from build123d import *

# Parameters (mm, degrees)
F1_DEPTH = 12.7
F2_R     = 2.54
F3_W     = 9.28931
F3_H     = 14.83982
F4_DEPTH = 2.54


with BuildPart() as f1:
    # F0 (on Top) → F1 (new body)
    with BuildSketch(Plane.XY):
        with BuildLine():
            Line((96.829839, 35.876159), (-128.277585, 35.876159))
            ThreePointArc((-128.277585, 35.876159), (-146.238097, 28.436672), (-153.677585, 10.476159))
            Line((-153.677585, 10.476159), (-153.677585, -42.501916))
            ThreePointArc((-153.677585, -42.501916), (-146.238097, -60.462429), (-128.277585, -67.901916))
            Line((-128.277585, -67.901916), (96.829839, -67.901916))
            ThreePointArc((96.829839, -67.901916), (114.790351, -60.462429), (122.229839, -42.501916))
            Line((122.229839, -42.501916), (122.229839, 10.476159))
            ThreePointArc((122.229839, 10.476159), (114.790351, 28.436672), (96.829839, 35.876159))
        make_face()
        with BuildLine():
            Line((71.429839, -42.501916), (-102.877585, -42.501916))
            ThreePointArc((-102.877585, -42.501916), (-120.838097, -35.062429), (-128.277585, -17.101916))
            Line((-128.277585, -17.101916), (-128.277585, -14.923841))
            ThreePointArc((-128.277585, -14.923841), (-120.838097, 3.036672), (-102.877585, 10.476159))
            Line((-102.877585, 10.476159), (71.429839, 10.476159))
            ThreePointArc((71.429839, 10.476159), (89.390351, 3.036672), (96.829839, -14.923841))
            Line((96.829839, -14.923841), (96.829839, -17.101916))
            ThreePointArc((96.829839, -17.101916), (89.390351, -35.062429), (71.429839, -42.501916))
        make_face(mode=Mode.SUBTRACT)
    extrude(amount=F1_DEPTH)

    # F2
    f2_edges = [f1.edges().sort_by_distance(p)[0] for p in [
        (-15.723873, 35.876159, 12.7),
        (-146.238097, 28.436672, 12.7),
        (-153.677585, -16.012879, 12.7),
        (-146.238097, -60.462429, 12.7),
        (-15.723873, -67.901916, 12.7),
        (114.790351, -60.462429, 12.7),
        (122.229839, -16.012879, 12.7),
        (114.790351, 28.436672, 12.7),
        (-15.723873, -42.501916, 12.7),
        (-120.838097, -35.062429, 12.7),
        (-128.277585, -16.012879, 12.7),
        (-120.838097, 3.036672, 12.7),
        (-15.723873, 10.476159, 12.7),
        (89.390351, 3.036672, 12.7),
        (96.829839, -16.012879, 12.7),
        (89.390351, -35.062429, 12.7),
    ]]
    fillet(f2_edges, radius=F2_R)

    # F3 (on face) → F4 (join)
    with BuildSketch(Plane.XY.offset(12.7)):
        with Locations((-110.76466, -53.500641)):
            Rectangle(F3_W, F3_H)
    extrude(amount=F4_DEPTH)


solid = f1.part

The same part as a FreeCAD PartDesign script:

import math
import FreeCAD as App
import Part
import Sketcher

V = App.Vector
Q = App.Units.Quantity


def edges_at(feature, points):
    """Names of the edges that pass closest to the given points."""
    edges = feature.Shape.Edges
    near = lambda p: min(range(len(edges)), key=lambda i: edges[i].distToShape(Part.Vertex(*p))[0])
    return sorted({f"Edge{near(p) + 1}" for p in points})


def add_polygon(sketch, points):
    """Adds a closed chain of lines whose ends are joined by coincident constraints."""
    first, n = sketch.GeometryCount, len(points)
    for a, b in zip(points, points[1:] + points[:1]):
        sketch.addGeometry(Part.LineSegment(App.Vector(*a, 0), App.Vector(*b, 0)), False)
    for i in range(n):
        sketch.addConstraint(Sketcher.Constraint("Coincident", first + i, 2, first + (i + 1) % n, 1))

doc = App.newDocument("Part")
body = doc.addObject("PartDesign::Body", "Body")

sketch1 = body.newObject("Sketcher::SketchObject", "Sketch")
sketch1.AttachmentSupport = (doc.getObject("XY_Plane"), [""])
sketch1.MapMode = "FlatFace"
sketch1.addGeometry(Part.LineSegment(V(96.8, 35.9, 0), V(-128.3, 35.9, 0)), False)
sketch1.addGeometry(Part.ArcOfCircle(Part.Circle(V(-128.3, 10.5, 0), V(0, 0, 1), 25.4), math.radians(90), math.radians(180)), False)
sketch1.addGeometry(Part.LineSegment(V(-153.7, 10.5, 0), V(-153.7, -42.5, 0)), False)
sketch1.addGeometry(Part.ArcOfCircle(Part.Circle(V(-128.3, -42.5, 0), V(0, 0, 1), 25.4), math.radians(180), math.radians(270)), False)
sketch1.addGeometry(Part.LineSegment(V(-128.3, -67.9, 0), V(96.8, -67.9, 0)), False)
sketch1.addGeometry(Part.ArcOfCircle(Part.Circle(V(96.8, -42.5, 0), V(0, 0, 1), 25.4), math.radians(-90), math.radians(0)), False)
sketch1.addGeometry(Part.LineSegment(V(122.2, -42.5, 0), V(122.2, 10.5, 0)), False)
sketch1.addGeometry(Part.ArcOfCircle(Part.Circle(V(96.8, 10.5, 0), V(0, 0, 1), 25.4), math.radians(0), math.radians(90)), False)
sketch1.addGeometry(Part.ArcOfCircle(Part.Circle(V(71.4, -17.1, 0), V(0, 0, 1), 25.4), math.radians(-90), math.radians(0)), False)
sketch1.addGeometry(Part.LineSegment(V(71.4, -42.5, 0), V(-102.9, -42.5, 0)), False)
sketch1.addGeometry(Part.ArcOfCircle(Part.Circle(V(-102.9, -17.1, 0), V(0, 0, 1), 25.4), math.radians(180), math.radians(270)), False)
sketch1.addGeometry(Part.LineSegment(V(-128.3, -17.1, 0), V(-128.3, -14.9, 0)), False)
sketch1.addGeometry(Part.ArcOfCircle(Part.Circle(V(-102.9, -14.9, 0), V(0, 0, 1), 25.4), math.radians(90), math.radians(180)), False)
sketch1.addGeometry(Part.LineSegment(V(-102.9, 10.5, 0), V(71.4, 10.5, 0)), False)
sketch1.addGeometry(Part.ArcOfCircle(Part.Circle(V(71.4, -14.9, 0), V(0, 0, 1), 25.4), math.radians(0), math.radians(90)), False)
sketch1.addGeometry(Part.LineSegment(V(96.8, -14.9, 0), V(96.8, -17.1, 0)), False)
sketch1.addConstraint(Sketcher.Constraint("Tangent", 0, 2, 1, 1))
sketch1.addConstraint(Sketcher.Constraint("Tangent", 1, 2, 2, 1))
sketch1.addConstraint(Sketcher.Constraint("Tangent", 2, 2, 3, 1))
sketch1.addConstraint(Sketcher.Constraint("Tangent", 3, 2, 4, 1))
sketch1.addConstraint(Sketcher.Constraint("Tangent", 4, 2, 5, 1))
sketch1.addConstraint(Sketcher.Constraint("Tangent", 5, 2, 6, 1))
sketch1.addConstraint(Sketcher.Constraint("Tangent", 6, 2, 7, 1))
sketch1.addConstraint(Sketcher.Constraint("Tangent", 7, 2, 0, 1))
sketch1.addConstraint(Sketcher.Constraint("Tangent", 8, 1, 9, 1))
sketch1.addConstraint(Sketcher.Constraint("Tangent", 9, 2, 10, 2))
sketch1.addConstraint(Sketcher.Constraint("Tangent", 10, 1, 11, 1))
sketch1.addConstraint(Sketcher.Constraint("Tangent", 11, 2, 12, 2))
sketch1.addConstraint(Sketcher.Constraint("Tangent", 12, 1, 13, 1))
sketch1.addConstraint(Sketcher.Constraint("Tangent", 13, 2, 14, 2))
sketch1.addConstraint(Sketcher.Constraint("Tangent", 14, 1, 15, 1))
sketch1.addConstraint(Sketcher.Constraint("Tangent", 15, 2, 8, 2))
sketch1.addConstraint(Sketcher.Constraint("Horizontal", 0))
sketch1.addConstraint(Sketcher.Constraint("Vertical", 2))
sketch1.addConstraint(Sketcher.Constraint("Horizontal", 4))
sketch1.addConstraint(Sketcher.Constraint("Vertical", 6))
sketch1.addConstraint(Sketcher.Constraint("Horizontal", 9))
sketch1.addConstraint(Sketcher.Constraint("Vertical", 11))
sketch1.addConstraint(Sketcher.Constraint("Horizontal", 13))
sketch1.addConstraint(Sketcher.Constraint("Vertical", 15))
sketch1.addConstraint(Sketcher.Constraint("Equal", 1, 3))
sketch1.addConstraint(Sketcher.Constraint("Equal", 3, 5))
sketch1.addConstraint(Sketcher.Constraint("Equal", 5, 7))
sketch1.addConstraint(Sketcher.Constraint("Equal", 7, 8))
sketch1.addConstraint(Sketcher.Constraint("Equal", 8, 10))
sketch1.addConstraint(Sketcher.Constraint("Equal", 10, 12))
sketch1.addConstraint(Sketcher.Constraint("Equal", 12, 14))
sketch1.addConstraint(Sketcher.Constraint("Horizontal", 5, 2, 8, 1))
sketch1.addConstraint(Sketcher.Constraint("Horizontal", 6, 2, 12, 1))
sketch1.addConstraint(Sketcher.Constraint("Vertical", 3, 2, 10, 1))
sketch1.addConstraint(Sketcher.Constraint("Vertical", 7, 2, 14, 1))
sketch1.addConstraint(Sketcher.Constraint("Radius", 1, Q("1 in")))
sketch1.addConstraint(Sketcher.Constraint("DistanceX", 0, 2, 0, 1, 225.107424))
sketch1.addConstraint(Sketcher.Constraint("DistanceY", 2, 2, 2, 1, 52.978075))
sketch1.addConstraint(Sketcher.Constraint("DistanceY", -1, 1, 1, 3, 10.47616))
sketch1.addConstraint(Sketcher.Constraint("DistanceX", -1, 1, 5, 3, 96.82984))
pad1 = body.newObject("PartDesign::Pad", "Pad")
pad1.Profile = sketch1
pad1.Length = Q("0.5 in")
doc.recompute()

fillet = body.newObject("PartDesign::Fillet", "Fillet")
fillet.Base = (pad1, edges_at(pad1, [
    (-15.724, 35.876, 12.7),
    (-146.238, 28.437, 12.7),
    (-153.678, -16.013, 12.7),
    (-146.238, -60.462, 12.7),
    (-15.724, -67.902, 12.7),
    (114.79, -60.462, 12.7),
    (122.23, -16.013, 12.7),
    (114.79, 28.437, 12.7),
    (-15.724, -42.502, 12.7),
    (-120.838, -35.062, 12.7),
    (-128.278, -16.013, 12.7),
    (-120.838, 3.037, 12.7),
    (-15.724, 10.476, 12.7),
    (89.39, 3.037, 12.7),
    (96.83, -16.013, 12.7),
    (89.39, -35.062, 12.7),
]))
fillet.Radius = Q("0.1 in")

sketch2 = body.newObject("Sketcher::SketchObject", "Sketch001")
sketch2.AttachmentSupport = (doc.getObject("XY_Plane"), [""])
sketch2.MapMode = "FlatFace"
sketch2.AttachmentOffset = App.Placement(V(0, 0, 0.5 * 25.4), App.Rotation())
add_polygon(sketch2, [(-115, -46), (-115, -61), (-106, -61), (-106, -46)])
sketch2.addConstraint(Sketcher.Constraint("Vertical", 0))
sketch2.addConstraint(Sketcher.Constraint("Horizontal", 1))
sketch2.addConstraint(Sketcher.Constraint("Vertical", 2))
sketch2.addConstraint(Sketcher.Constraint("Horizontal", 3))
sketch2.addConstraint(Sketcher.Constraint("DistanceX", 1, 1, 1, 2, 9.28931))
sketch2.addConstraint(Sketcher.Constraint("DistanceY", 0, 2, 0, 1, 14.83982))
sketch2.addConstraint(Sketcher.Constraint("DistanceY", 0, 2, -1, 1, 60.920551))
sketch2.addConstraint(Sketcher.Constraint("DistanceX", 0, 2, -1, 1, 115.409315))
pad2 = body.newObject("PartDesign::Pad", "Pad001")
pad2.Profile = sketch2
pad2.Length = Q("0.1 in")

doc.recompute()
